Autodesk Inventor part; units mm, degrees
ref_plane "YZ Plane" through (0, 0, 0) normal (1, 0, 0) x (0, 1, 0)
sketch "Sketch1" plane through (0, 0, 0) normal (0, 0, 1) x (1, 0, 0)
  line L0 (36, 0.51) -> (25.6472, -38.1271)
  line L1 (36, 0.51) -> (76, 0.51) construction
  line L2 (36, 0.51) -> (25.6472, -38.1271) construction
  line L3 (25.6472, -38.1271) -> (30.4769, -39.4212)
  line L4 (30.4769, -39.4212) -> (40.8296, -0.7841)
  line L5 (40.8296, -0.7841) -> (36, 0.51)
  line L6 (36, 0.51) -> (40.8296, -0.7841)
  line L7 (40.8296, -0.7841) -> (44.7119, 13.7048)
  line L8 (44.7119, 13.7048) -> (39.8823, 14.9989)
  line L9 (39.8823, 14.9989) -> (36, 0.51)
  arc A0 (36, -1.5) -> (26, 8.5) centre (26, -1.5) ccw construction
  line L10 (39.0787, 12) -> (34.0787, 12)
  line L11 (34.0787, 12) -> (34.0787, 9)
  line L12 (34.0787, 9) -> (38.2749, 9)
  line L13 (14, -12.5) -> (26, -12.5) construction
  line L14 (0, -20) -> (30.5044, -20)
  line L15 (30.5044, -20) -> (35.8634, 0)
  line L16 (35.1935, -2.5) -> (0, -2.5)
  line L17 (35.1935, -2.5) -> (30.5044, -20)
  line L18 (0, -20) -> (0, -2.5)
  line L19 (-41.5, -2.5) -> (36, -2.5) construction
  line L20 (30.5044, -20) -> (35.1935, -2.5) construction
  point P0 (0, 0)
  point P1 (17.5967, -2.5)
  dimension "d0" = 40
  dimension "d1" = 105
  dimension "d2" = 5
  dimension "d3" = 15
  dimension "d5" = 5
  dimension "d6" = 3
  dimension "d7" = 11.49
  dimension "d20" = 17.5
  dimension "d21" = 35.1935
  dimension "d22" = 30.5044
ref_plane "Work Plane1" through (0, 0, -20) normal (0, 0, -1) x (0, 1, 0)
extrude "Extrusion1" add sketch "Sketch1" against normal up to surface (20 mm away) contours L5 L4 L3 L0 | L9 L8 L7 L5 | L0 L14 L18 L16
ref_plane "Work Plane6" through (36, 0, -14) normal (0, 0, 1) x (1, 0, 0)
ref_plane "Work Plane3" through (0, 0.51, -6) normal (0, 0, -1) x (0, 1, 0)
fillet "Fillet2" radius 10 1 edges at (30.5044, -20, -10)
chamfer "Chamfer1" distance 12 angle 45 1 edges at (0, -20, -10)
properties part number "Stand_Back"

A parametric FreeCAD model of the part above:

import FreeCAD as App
import Part
import Sketcher
Q = App.Units.Quantity


def edges_at(feature, points):
    """Names of the edges that pass closest to the given points."""
    edges = feature.Shape.Edges
    near = lambda p: min(range(len(edges)), key=lambda i: edges[i].distToShape(Part.Vertex(*p))[0])
    return sorted({f"Edge{near(p) + 1}" for p in points})

doc = App.newDocument("Part")
body = doc.addObject("PartDesign::Body", "Body")

# Sketch on XY plane
sketch1 = body.newObject("Sketcher::SketchObject", "Sketch")
sketch1.AttachmentSupport = (doc.getObject("XY_Plane"), [""])
sketch1.MapMode = "FlatFace"
sketch1.addGeometry([
    Part.LineSegment(App.Vector(30.4769, -39.4212, 0), App.Vector(40.8296, -0.7841, 0)),  # 0
    Part.LineSegment(App.Vector(40.8296, -0.7841, 0), App.Vector(44.7119, 13.7048, 0)),  # 1
    Part.LineSegment(App.Vector(44.7119, 13.7048, 0), App.Vector(39.8823, 14.9989, 0)),  # 2
    Part.LineSegment(App.Vector(39.8823, 14.9989, 0), App.Vector(36, 0.51, 0)),  # 3
    Part.LineSegment(App.Vector(36, 0.51, 0), App.Vector(35.1935, -2.5, 0)),  # 4
    Part.LineSegment(App.Vector(35.1935, -2.5, 0), App.Vector(0, -2.5, 0)),  # 5
    Part.LineSegment(App.Vector(0, -2.5, 0), App.Vector(0, -20, 0)),  # 6
    Part.LineSegment(App.Vector(0, -20, 0), App.Vector(30.5044, -20, 0)),  # 7
    Part.LineSegment(App.Vector(30.504355, -19.999988, 0), App.Vector(25.6472, -38.1271, 0)),  # 8
    Part.LineSegment(App.Vector(25.6472, -38.1271, 0), App.Vector(30.4769, -39.4212, 0)),  # 9
], False)
sketch1.addConstraint([
    Sketcher.Constraint("Coincident", 0, 2, 1, 1),
    Sketcher.Constraint("Coincident", 1, 2, 2, 1),
    Sketcher.Constraint("Coincident", 2, 2, 3, 1),
    Sketcher.Constraint("Coincident", 3, 2, 4, 1),
    Sketcher.Constraint("Coincident", 4, 2, 5, 1),
    Sketcher.Constraint("Coincident", 5, 2, 6, 1),
    Sketcher.Constraint("Coincident", 6, 2, 7, 1),
    Sketcher.Constraint("Coincident", 7, 2, 8, 1),
    Sketcher.Constraint("Coincident", 8, 2, 9, 1),
    Sketcher.Constraint("Coincident", 9, 2, 0, 1),
    Sketcher.Constraint("Horizontal", 5),
    Sketcher.Constraint("Vertical", 6),
    Sketcher.Constraint("Horizontal", 7),
    Sketcher.Constraint("PointOnObject", 5, 2, -2),
    Sketcher.Constraint("Parallel", 0, 1),
    Sketcher.Constraint("Perpendicular", 1, 2),
    Sketcher.Constraint("Perpendicular", 2, 3),
    Sketcher.Constraint("Parallel", 3, 4),
    Sketcher.Constraint("Parallel", 4, 8),
    Sketcher.Constraint("Perpendicular", 8, 9),
    Sketcher.Constraint("Equal", 1, 3),
    Sketcher.Constraint("Equal", 2, 9),
    Sketcher.Constraint("Angle", 3, Q("-105 deg")),
    Sketcher.Constraint("Distance", 0, Q("40 mm")),
    Sketcher.Constraint("Distance", 1, Q("15 mm")),
    Sketcher.Constraint("Distance", 2, Q("5 mm")),
    Sketcher.Constraint("DistanceY", 6, 2, 6, 1, Q("17.5 mm")),
    Sketcher.Constraint("DistanceX", 5, 2, 5, 1, Q("35.1935 mm")),
    Sketcher.Constraint("DistanceX", -1, 1, 3, 2, Q("36 mm")),
    Sketcher.Constraint("DistanceY", 6, 2, -1, 1, Q("20 mm")),
])
pad1 = body.newObject("PartDesign::Pad", "Pad")
pad1.Profile = sketch1
pad1.Length = 20
pad1.Reversed = True
doc.recompute()

fillet = body.newObject("PartDesign::Fillet", "Fillet")
fillet.Base = (pad1, edges_at(pad1, [(30.504, -20, -10)]))
fillet.Radius = 10
doc.recompute()

chamfer = body.newObject("PartDesign::Chamfer", "Chamfer")
chamfer.Base = (fillet, edges_at(fillet, [(0, -20, -10)]))
chamfer.Size = 12

doc.recompute()
